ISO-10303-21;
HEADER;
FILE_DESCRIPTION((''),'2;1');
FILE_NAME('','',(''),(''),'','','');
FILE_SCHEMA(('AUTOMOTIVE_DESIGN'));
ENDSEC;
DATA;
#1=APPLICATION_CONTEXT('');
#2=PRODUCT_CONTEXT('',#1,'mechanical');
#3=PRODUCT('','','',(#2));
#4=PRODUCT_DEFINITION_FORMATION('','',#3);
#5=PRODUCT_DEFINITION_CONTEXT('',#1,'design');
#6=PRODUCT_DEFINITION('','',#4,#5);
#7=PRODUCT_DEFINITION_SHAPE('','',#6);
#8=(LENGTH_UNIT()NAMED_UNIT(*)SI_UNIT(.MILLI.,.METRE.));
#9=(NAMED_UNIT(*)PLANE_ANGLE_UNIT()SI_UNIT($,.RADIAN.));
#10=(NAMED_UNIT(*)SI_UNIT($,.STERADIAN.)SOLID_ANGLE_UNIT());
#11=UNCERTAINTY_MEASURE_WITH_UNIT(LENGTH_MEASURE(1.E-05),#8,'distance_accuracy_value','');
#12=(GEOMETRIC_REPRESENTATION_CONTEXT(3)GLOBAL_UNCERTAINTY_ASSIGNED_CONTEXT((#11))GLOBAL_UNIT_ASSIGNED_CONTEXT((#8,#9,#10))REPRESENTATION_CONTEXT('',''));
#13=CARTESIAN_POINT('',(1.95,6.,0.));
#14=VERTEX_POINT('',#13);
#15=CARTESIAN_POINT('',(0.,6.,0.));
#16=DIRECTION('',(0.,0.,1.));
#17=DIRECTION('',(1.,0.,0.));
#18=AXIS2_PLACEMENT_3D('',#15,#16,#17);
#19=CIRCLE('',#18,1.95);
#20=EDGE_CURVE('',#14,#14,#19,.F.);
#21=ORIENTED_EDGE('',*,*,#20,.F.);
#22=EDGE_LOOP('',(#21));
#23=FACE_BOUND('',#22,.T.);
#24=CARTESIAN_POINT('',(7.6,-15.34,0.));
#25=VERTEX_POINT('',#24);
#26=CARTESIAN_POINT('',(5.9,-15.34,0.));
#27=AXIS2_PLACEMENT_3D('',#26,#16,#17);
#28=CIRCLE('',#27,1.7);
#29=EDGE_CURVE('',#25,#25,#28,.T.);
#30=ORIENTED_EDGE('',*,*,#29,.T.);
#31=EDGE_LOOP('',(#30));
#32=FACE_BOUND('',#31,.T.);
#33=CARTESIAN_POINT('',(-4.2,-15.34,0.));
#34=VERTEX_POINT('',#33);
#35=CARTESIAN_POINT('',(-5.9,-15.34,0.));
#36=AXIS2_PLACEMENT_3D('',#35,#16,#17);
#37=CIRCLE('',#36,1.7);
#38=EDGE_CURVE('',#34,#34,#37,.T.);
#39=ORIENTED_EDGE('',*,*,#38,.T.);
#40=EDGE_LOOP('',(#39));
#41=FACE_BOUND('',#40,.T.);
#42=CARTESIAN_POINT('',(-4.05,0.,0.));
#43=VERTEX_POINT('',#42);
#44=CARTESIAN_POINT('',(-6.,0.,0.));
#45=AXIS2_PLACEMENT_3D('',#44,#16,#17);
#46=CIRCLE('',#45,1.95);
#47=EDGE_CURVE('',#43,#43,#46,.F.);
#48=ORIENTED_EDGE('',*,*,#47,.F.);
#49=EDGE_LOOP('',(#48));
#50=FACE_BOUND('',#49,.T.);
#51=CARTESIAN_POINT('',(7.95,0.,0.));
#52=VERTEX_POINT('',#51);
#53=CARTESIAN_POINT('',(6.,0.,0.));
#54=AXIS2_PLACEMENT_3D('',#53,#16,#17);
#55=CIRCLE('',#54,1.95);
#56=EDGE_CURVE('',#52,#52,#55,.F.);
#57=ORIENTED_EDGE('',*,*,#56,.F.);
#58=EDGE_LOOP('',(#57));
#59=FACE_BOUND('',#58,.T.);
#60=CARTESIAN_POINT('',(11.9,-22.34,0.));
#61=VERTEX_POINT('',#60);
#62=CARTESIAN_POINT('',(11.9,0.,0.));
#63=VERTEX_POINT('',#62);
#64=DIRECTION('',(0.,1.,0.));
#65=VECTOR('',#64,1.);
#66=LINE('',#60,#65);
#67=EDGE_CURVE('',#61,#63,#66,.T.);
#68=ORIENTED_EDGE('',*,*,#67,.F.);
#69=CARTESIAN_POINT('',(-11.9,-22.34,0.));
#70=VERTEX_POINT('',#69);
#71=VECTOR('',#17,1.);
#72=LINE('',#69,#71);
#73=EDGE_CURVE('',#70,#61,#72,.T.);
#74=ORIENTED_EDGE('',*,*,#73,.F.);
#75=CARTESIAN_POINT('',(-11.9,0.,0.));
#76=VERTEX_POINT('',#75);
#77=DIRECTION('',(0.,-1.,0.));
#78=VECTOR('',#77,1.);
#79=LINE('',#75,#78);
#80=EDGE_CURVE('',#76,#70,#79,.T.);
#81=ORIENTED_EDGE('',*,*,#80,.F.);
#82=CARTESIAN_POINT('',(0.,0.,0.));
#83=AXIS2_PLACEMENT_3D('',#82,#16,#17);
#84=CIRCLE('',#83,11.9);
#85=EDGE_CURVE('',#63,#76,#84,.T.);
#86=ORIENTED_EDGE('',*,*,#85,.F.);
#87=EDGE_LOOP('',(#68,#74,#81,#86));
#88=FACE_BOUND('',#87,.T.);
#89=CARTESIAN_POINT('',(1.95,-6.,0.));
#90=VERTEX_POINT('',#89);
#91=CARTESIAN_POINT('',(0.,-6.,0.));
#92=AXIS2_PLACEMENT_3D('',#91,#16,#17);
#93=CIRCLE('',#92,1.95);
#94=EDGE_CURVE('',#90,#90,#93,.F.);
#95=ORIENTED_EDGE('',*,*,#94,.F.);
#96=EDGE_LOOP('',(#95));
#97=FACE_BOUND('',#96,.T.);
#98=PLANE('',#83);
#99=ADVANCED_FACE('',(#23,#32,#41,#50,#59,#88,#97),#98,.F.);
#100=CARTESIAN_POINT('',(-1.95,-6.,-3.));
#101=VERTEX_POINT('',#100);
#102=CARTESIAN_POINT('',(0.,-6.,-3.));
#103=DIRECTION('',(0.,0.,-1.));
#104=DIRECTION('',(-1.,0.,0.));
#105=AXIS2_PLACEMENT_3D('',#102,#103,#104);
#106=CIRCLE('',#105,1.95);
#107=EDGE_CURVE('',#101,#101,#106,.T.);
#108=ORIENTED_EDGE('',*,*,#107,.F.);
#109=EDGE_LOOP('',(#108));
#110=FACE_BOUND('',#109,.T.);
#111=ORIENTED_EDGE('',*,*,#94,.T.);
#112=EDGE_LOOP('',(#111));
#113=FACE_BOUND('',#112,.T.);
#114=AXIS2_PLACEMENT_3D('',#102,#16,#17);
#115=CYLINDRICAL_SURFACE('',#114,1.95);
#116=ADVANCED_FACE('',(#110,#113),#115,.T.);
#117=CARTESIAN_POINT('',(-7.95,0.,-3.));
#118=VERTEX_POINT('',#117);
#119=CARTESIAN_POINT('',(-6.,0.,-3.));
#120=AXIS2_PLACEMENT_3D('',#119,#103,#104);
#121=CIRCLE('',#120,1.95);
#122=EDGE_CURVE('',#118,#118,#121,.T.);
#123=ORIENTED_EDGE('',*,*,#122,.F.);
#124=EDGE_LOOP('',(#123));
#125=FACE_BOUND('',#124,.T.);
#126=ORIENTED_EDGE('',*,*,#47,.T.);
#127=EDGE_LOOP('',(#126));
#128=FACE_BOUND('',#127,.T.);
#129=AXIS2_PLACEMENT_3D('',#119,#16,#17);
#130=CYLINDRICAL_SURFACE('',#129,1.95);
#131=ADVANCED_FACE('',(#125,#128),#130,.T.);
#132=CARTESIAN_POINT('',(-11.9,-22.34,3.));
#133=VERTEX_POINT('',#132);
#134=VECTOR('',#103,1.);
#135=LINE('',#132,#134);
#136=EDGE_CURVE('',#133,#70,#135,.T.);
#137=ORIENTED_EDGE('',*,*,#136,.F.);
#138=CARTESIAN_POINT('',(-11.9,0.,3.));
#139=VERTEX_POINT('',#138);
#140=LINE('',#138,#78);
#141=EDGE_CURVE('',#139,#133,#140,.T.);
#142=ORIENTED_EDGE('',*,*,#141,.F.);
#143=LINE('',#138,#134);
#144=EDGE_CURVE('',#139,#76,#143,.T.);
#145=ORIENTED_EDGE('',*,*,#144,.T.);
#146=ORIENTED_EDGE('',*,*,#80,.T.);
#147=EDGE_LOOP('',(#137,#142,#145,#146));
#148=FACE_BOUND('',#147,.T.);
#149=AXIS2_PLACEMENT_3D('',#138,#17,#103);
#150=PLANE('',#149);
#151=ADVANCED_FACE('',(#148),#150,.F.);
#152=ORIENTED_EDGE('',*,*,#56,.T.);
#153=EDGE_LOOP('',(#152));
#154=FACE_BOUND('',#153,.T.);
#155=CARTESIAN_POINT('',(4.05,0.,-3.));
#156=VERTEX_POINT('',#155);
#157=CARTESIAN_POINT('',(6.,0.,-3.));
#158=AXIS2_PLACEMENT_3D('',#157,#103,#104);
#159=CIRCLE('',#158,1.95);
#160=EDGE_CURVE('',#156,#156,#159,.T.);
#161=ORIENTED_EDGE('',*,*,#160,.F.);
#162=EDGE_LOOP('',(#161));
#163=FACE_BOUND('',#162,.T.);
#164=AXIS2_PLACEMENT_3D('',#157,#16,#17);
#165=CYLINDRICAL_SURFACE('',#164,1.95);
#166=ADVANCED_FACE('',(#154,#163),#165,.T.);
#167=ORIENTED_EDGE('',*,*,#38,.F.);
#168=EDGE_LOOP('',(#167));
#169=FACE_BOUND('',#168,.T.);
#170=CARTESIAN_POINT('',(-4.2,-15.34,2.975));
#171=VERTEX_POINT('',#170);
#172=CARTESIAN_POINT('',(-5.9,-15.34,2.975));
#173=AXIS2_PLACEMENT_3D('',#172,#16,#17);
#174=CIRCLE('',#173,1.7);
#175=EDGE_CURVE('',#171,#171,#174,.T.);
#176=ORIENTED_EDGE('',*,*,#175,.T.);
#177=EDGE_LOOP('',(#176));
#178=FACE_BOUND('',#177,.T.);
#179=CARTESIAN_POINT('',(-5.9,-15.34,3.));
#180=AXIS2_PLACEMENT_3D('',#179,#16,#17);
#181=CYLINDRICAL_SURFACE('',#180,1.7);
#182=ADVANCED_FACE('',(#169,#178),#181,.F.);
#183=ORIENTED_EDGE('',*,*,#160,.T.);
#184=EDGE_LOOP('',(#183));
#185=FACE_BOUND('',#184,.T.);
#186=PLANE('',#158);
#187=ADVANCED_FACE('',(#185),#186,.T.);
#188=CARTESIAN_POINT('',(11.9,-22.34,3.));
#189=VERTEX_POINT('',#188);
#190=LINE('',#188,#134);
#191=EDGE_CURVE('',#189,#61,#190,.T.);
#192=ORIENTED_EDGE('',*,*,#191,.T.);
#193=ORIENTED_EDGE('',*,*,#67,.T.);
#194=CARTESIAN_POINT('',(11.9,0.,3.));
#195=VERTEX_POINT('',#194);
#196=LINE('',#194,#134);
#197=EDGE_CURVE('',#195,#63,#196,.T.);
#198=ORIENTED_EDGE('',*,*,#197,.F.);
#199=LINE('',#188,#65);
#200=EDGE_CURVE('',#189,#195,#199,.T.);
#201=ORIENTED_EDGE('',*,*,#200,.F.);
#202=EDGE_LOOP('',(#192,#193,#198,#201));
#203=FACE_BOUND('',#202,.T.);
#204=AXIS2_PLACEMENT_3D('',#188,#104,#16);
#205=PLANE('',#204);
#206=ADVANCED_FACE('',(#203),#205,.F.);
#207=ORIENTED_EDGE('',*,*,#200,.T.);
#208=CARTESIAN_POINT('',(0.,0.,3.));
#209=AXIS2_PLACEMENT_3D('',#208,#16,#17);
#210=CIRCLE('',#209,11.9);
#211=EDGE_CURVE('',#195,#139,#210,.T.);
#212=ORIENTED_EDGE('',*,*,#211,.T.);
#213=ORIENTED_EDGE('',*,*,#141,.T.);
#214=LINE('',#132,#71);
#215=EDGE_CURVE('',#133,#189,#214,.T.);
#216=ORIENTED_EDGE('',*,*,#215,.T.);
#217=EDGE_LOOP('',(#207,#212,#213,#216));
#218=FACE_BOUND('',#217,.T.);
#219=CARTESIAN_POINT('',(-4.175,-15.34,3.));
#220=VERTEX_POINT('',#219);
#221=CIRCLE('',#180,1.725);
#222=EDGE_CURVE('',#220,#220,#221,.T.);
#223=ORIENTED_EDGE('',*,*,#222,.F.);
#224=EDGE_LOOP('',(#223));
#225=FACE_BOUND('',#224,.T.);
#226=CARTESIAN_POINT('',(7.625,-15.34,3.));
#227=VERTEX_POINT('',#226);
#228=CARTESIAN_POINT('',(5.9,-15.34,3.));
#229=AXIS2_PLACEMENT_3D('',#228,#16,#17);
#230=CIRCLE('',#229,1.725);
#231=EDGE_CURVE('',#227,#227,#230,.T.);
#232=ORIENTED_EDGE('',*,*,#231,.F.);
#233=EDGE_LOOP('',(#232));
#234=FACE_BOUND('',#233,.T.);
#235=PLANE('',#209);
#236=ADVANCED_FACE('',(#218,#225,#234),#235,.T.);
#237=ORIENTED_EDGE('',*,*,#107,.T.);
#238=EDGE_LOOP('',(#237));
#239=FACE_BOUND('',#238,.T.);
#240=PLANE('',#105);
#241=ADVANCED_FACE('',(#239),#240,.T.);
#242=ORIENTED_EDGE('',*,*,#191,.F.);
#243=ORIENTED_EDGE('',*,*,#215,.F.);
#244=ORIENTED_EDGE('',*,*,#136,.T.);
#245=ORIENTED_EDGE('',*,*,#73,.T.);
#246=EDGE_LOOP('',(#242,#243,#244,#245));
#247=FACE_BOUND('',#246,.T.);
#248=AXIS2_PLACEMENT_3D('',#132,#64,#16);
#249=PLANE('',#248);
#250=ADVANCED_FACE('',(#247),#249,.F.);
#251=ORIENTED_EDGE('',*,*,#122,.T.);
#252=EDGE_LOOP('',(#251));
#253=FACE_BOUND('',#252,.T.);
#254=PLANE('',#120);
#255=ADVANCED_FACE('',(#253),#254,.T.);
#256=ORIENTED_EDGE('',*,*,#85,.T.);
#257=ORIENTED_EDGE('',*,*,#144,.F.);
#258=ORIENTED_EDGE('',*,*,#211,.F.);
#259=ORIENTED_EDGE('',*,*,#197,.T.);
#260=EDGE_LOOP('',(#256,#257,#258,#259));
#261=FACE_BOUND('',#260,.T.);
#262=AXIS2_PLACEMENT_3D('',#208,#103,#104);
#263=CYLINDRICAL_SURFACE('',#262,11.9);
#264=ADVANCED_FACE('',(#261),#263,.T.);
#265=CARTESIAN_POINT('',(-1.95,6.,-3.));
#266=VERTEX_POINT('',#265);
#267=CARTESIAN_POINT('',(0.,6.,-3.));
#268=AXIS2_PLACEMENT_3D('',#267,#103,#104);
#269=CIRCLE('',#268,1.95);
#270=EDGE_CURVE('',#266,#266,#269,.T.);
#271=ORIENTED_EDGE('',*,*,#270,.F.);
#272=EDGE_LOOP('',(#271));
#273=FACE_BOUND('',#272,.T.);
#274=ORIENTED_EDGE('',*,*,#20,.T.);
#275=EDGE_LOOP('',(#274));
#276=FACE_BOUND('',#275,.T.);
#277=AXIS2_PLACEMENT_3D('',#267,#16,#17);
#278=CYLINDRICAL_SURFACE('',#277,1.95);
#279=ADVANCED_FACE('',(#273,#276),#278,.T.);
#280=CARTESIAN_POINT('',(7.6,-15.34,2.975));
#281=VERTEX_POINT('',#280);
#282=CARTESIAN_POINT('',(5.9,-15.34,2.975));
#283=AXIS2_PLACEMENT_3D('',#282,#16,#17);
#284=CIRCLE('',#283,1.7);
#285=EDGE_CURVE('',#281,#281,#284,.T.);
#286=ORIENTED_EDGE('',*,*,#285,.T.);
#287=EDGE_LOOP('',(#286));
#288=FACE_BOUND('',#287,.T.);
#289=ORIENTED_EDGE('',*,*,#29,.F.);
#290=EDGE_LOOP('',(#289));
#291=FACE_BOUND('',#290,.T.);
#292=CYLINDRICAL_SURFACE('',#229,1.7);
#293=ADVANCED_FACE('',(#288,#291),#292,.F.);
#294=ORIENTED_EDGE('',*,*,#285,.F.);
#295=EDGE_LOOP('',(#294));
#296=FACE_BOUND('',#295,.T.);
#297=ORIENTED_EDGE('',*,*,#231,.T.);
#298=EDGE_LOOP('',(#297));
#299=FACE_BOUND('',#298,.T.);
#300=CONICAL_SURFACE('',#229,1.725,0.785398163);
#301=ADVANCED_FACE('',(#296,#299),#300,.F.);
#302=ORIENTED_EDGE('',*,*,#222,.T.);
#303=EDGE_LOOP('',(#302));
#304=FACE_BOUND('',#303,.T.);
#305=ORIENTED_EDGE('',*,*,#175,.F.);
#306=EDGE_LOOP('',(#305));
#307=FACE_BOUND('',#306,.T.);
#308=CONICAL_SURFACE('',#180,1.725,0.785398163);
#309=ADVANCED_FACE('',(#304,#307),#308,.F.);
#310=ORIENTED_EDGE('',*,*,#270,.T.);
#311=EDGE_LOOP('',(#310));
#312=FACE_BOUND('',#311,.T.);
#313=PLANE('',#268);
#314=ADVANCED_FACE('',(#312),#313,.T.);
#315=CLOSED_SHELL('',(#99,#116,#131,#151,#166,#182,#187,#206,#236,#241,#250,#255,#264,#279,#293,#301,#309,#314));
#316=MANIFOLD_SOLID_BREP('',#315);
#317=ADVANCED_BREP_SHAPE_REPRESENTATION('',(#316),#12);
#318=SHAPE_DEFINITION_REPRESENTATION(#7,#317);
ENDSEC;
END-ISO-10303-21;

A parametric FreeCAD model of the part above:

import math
import FreeCAD as App
import Part
import Sketcher
from FreeCAD import Vector

doc = App.newDocument("Part")
params = doc.addObject("Spreadsheet::Sheet", "Params")
for row, (alias, value) in enumerate([
    ("sketch1_radius", "11.9 mm"),
    ("sketch1_height", "22.34 mm"),
    ("pad1_length", "3 mm"),
    ("sketch2_diameter", "3.9 mm"),
    ("pad2_length", "3 mm"),
    ("sketch3_diameter", "3.4 mm"),
    ("hole_diameter", "3.4 mm"),
    ("hole_csink_diameter", "3.45 mm"),
], start=1):
    params.set(f"A{row}", alias)
    params.set(f"B{row}", "=" + value)
    params.setAlias(f"B{row}", alias)

body = doc.addObject("PartDesign::Body", "Body")

sketch1 = body.newObject("Sketcher::SketchObject", "Sketch")
sketch1.AttachmentSupport = (doc.getObject("XY_Plane"), [""])
sketch1.MapMode = "FlatFace"
sketch1.addGeometry([
    Part.LineSegment(Vector(-12, 0, 0), Vector(-12, -22, 0)),
    Part.LineSegment(Vector(-12, -22, 0), Vector(12, -22, 0)),
    Part.LineSegment(Vector(12, -22, 0), Vector(12, 0, 0)),
    Part.ArcOfCircle(Part.Circle(Vector(0, 0, 0), Vector(0, 0, 1), 12), math.radians(0), math.radians(180)),
], False)
sketch1.addConstraint([
    Sketcher.Constraint("Coincident", 0, 2, 1, 1),
    Sketcher.Constraint("Coincident", 1, 2, 2, 1),
    Sketcher.Constraint("Tangent", 2, 2, 3, 1),
    Sketcher.Constraint("Tangent", 3, 2, 0, 1),
    Sketcher.Constraint("Vertical", 0),
    Sketcher.Constraint("Horizontal", 1),
    Sketcher.Constraint("Vertical", 2),
    Sketcher.Constraint("Coincident", 3, 3, -1, 1),
    Sketcher.Constraint("Radius", 3, 11.9),
    Sketcher.Constraint("DistanceY", 0, 2, 0, 1, 22.34),
])
sketch1.setExpression("Constraints[8]", "Params.sketch1_radius")
sketch1.setExpression("Constraints[9]", "Params.sketch1_height")
pad1 = body.newObject("PartDesign::Pad", "Pad")
pad1.Profile = sketch1
pad1.setExpression("Length", "Params.pad1_length")

sketch2 = body.newObject("Sketcher::SketchObject", "Sketch001")
sketch2.AttachmentSupport = (doc.getObject("XY_Plane"), [""])
sketch2.MapMode = "FlatFace"
sketch2.addGeometry([
    Part.Circle(Vector(0, 6, 0), Vector(0, 0, 1), 1.9),
    Part.Circle(Vector(-6, 0, 0), Vector(0, 0, 1), 1.9),
    Part.Circle(Vector(0, -6, 0), Vector(0, 0, 1), 1.9),
    Part.Circle(Vector(6, 0, 0), Vector(0, 0, 1), 1.9),
], False)
sketch2.addConstraint([
    Sketcher.Constraint("Equal", 0, 1),
    Sketcher.Constraint("Equal", 1, 2),
    Sketcher.Constraint("Equal", 2, 3),
    Sketcher.Constraint("Symmetric", 0, 3, 2, 3, -1, 1),
    Sketcher.Constraint("Symmetric", 1, 3, 3, 3, -1, 1),
    Sketcher.Constraint("PointOnObject", 0, 3, -2),
    Sketcher.Constraint("PointOnObject", 1, 3, -1),
    Sketcher.Constraint("Diameter", 0, 3.9),
    Sketcher.Constraint("DistanceY", -1, 1, 0, 3, 6.0),
    Sketcher.Constraint("DistanceX", 1, 3, -1, 1, 6.0),
])
sketch2.setExpression("Constraints[7]", "Params.sketch2_diameter")
pad2 = body.newObject("PartDesign::Pad", "Pad001")
pad2.Profile = sketch2
pad2.setExpression("Length", "Params.pad2_length")
pad2.Reversed = True

sketch3 = body.newObject("Sketcher::SketchObject", "Sketch002")
sketch3.AttachmentSupport = (doc.getObject("XY_Plane"), [""])
sketch3.MapMode = "FlatFace"
sketch3.AttachmentOffset = App.Placement(Vector(0, 0, 3), App.Rotation())
sketch3.addGeometry([
    Part.Circle(Vector(-5.9, -15.3, 0), Vector(0, 0, 1), 1.7),
    Part.Circle(Vector(5.9, -15.3, 0), Vector(0, 0, 1), 1.7),
], False)
sketch3.addConstraint([
    Sketcher.Constraint("Equal", 0, 1),
    Sketcher.Constraint("Symmetric", 0, 3, 1, 3, -2),
    Sketcher.Constraint("Diameter", 0, 3.4),
    Sketcher.Constraint("DistanceX", 0, 3, -1, 1, 5.9),
    Sketcher.Constraint("DistanceY", 0, 3, -1, 1, 15.34),
])
sketch3.setExpression("Constraints[2]", "Params.sketch3_diameter")
doc.recompute()
hole = body.newObject("PartDesign::Hole", "Hole")
hole.Profile = sketch3
hole.ThreadType = "None"
hole.setExpression("Diameter", "Params.hole_diameter")
hole.DepthType = "ThroughAll"
hole.HoleCutType = "Countersink"
hole.setExpression("HoleCutDiameter", "Params.hole_csink_diameter")
hole.HoleCutCountersinkAngle = 90

doc.recompute()
